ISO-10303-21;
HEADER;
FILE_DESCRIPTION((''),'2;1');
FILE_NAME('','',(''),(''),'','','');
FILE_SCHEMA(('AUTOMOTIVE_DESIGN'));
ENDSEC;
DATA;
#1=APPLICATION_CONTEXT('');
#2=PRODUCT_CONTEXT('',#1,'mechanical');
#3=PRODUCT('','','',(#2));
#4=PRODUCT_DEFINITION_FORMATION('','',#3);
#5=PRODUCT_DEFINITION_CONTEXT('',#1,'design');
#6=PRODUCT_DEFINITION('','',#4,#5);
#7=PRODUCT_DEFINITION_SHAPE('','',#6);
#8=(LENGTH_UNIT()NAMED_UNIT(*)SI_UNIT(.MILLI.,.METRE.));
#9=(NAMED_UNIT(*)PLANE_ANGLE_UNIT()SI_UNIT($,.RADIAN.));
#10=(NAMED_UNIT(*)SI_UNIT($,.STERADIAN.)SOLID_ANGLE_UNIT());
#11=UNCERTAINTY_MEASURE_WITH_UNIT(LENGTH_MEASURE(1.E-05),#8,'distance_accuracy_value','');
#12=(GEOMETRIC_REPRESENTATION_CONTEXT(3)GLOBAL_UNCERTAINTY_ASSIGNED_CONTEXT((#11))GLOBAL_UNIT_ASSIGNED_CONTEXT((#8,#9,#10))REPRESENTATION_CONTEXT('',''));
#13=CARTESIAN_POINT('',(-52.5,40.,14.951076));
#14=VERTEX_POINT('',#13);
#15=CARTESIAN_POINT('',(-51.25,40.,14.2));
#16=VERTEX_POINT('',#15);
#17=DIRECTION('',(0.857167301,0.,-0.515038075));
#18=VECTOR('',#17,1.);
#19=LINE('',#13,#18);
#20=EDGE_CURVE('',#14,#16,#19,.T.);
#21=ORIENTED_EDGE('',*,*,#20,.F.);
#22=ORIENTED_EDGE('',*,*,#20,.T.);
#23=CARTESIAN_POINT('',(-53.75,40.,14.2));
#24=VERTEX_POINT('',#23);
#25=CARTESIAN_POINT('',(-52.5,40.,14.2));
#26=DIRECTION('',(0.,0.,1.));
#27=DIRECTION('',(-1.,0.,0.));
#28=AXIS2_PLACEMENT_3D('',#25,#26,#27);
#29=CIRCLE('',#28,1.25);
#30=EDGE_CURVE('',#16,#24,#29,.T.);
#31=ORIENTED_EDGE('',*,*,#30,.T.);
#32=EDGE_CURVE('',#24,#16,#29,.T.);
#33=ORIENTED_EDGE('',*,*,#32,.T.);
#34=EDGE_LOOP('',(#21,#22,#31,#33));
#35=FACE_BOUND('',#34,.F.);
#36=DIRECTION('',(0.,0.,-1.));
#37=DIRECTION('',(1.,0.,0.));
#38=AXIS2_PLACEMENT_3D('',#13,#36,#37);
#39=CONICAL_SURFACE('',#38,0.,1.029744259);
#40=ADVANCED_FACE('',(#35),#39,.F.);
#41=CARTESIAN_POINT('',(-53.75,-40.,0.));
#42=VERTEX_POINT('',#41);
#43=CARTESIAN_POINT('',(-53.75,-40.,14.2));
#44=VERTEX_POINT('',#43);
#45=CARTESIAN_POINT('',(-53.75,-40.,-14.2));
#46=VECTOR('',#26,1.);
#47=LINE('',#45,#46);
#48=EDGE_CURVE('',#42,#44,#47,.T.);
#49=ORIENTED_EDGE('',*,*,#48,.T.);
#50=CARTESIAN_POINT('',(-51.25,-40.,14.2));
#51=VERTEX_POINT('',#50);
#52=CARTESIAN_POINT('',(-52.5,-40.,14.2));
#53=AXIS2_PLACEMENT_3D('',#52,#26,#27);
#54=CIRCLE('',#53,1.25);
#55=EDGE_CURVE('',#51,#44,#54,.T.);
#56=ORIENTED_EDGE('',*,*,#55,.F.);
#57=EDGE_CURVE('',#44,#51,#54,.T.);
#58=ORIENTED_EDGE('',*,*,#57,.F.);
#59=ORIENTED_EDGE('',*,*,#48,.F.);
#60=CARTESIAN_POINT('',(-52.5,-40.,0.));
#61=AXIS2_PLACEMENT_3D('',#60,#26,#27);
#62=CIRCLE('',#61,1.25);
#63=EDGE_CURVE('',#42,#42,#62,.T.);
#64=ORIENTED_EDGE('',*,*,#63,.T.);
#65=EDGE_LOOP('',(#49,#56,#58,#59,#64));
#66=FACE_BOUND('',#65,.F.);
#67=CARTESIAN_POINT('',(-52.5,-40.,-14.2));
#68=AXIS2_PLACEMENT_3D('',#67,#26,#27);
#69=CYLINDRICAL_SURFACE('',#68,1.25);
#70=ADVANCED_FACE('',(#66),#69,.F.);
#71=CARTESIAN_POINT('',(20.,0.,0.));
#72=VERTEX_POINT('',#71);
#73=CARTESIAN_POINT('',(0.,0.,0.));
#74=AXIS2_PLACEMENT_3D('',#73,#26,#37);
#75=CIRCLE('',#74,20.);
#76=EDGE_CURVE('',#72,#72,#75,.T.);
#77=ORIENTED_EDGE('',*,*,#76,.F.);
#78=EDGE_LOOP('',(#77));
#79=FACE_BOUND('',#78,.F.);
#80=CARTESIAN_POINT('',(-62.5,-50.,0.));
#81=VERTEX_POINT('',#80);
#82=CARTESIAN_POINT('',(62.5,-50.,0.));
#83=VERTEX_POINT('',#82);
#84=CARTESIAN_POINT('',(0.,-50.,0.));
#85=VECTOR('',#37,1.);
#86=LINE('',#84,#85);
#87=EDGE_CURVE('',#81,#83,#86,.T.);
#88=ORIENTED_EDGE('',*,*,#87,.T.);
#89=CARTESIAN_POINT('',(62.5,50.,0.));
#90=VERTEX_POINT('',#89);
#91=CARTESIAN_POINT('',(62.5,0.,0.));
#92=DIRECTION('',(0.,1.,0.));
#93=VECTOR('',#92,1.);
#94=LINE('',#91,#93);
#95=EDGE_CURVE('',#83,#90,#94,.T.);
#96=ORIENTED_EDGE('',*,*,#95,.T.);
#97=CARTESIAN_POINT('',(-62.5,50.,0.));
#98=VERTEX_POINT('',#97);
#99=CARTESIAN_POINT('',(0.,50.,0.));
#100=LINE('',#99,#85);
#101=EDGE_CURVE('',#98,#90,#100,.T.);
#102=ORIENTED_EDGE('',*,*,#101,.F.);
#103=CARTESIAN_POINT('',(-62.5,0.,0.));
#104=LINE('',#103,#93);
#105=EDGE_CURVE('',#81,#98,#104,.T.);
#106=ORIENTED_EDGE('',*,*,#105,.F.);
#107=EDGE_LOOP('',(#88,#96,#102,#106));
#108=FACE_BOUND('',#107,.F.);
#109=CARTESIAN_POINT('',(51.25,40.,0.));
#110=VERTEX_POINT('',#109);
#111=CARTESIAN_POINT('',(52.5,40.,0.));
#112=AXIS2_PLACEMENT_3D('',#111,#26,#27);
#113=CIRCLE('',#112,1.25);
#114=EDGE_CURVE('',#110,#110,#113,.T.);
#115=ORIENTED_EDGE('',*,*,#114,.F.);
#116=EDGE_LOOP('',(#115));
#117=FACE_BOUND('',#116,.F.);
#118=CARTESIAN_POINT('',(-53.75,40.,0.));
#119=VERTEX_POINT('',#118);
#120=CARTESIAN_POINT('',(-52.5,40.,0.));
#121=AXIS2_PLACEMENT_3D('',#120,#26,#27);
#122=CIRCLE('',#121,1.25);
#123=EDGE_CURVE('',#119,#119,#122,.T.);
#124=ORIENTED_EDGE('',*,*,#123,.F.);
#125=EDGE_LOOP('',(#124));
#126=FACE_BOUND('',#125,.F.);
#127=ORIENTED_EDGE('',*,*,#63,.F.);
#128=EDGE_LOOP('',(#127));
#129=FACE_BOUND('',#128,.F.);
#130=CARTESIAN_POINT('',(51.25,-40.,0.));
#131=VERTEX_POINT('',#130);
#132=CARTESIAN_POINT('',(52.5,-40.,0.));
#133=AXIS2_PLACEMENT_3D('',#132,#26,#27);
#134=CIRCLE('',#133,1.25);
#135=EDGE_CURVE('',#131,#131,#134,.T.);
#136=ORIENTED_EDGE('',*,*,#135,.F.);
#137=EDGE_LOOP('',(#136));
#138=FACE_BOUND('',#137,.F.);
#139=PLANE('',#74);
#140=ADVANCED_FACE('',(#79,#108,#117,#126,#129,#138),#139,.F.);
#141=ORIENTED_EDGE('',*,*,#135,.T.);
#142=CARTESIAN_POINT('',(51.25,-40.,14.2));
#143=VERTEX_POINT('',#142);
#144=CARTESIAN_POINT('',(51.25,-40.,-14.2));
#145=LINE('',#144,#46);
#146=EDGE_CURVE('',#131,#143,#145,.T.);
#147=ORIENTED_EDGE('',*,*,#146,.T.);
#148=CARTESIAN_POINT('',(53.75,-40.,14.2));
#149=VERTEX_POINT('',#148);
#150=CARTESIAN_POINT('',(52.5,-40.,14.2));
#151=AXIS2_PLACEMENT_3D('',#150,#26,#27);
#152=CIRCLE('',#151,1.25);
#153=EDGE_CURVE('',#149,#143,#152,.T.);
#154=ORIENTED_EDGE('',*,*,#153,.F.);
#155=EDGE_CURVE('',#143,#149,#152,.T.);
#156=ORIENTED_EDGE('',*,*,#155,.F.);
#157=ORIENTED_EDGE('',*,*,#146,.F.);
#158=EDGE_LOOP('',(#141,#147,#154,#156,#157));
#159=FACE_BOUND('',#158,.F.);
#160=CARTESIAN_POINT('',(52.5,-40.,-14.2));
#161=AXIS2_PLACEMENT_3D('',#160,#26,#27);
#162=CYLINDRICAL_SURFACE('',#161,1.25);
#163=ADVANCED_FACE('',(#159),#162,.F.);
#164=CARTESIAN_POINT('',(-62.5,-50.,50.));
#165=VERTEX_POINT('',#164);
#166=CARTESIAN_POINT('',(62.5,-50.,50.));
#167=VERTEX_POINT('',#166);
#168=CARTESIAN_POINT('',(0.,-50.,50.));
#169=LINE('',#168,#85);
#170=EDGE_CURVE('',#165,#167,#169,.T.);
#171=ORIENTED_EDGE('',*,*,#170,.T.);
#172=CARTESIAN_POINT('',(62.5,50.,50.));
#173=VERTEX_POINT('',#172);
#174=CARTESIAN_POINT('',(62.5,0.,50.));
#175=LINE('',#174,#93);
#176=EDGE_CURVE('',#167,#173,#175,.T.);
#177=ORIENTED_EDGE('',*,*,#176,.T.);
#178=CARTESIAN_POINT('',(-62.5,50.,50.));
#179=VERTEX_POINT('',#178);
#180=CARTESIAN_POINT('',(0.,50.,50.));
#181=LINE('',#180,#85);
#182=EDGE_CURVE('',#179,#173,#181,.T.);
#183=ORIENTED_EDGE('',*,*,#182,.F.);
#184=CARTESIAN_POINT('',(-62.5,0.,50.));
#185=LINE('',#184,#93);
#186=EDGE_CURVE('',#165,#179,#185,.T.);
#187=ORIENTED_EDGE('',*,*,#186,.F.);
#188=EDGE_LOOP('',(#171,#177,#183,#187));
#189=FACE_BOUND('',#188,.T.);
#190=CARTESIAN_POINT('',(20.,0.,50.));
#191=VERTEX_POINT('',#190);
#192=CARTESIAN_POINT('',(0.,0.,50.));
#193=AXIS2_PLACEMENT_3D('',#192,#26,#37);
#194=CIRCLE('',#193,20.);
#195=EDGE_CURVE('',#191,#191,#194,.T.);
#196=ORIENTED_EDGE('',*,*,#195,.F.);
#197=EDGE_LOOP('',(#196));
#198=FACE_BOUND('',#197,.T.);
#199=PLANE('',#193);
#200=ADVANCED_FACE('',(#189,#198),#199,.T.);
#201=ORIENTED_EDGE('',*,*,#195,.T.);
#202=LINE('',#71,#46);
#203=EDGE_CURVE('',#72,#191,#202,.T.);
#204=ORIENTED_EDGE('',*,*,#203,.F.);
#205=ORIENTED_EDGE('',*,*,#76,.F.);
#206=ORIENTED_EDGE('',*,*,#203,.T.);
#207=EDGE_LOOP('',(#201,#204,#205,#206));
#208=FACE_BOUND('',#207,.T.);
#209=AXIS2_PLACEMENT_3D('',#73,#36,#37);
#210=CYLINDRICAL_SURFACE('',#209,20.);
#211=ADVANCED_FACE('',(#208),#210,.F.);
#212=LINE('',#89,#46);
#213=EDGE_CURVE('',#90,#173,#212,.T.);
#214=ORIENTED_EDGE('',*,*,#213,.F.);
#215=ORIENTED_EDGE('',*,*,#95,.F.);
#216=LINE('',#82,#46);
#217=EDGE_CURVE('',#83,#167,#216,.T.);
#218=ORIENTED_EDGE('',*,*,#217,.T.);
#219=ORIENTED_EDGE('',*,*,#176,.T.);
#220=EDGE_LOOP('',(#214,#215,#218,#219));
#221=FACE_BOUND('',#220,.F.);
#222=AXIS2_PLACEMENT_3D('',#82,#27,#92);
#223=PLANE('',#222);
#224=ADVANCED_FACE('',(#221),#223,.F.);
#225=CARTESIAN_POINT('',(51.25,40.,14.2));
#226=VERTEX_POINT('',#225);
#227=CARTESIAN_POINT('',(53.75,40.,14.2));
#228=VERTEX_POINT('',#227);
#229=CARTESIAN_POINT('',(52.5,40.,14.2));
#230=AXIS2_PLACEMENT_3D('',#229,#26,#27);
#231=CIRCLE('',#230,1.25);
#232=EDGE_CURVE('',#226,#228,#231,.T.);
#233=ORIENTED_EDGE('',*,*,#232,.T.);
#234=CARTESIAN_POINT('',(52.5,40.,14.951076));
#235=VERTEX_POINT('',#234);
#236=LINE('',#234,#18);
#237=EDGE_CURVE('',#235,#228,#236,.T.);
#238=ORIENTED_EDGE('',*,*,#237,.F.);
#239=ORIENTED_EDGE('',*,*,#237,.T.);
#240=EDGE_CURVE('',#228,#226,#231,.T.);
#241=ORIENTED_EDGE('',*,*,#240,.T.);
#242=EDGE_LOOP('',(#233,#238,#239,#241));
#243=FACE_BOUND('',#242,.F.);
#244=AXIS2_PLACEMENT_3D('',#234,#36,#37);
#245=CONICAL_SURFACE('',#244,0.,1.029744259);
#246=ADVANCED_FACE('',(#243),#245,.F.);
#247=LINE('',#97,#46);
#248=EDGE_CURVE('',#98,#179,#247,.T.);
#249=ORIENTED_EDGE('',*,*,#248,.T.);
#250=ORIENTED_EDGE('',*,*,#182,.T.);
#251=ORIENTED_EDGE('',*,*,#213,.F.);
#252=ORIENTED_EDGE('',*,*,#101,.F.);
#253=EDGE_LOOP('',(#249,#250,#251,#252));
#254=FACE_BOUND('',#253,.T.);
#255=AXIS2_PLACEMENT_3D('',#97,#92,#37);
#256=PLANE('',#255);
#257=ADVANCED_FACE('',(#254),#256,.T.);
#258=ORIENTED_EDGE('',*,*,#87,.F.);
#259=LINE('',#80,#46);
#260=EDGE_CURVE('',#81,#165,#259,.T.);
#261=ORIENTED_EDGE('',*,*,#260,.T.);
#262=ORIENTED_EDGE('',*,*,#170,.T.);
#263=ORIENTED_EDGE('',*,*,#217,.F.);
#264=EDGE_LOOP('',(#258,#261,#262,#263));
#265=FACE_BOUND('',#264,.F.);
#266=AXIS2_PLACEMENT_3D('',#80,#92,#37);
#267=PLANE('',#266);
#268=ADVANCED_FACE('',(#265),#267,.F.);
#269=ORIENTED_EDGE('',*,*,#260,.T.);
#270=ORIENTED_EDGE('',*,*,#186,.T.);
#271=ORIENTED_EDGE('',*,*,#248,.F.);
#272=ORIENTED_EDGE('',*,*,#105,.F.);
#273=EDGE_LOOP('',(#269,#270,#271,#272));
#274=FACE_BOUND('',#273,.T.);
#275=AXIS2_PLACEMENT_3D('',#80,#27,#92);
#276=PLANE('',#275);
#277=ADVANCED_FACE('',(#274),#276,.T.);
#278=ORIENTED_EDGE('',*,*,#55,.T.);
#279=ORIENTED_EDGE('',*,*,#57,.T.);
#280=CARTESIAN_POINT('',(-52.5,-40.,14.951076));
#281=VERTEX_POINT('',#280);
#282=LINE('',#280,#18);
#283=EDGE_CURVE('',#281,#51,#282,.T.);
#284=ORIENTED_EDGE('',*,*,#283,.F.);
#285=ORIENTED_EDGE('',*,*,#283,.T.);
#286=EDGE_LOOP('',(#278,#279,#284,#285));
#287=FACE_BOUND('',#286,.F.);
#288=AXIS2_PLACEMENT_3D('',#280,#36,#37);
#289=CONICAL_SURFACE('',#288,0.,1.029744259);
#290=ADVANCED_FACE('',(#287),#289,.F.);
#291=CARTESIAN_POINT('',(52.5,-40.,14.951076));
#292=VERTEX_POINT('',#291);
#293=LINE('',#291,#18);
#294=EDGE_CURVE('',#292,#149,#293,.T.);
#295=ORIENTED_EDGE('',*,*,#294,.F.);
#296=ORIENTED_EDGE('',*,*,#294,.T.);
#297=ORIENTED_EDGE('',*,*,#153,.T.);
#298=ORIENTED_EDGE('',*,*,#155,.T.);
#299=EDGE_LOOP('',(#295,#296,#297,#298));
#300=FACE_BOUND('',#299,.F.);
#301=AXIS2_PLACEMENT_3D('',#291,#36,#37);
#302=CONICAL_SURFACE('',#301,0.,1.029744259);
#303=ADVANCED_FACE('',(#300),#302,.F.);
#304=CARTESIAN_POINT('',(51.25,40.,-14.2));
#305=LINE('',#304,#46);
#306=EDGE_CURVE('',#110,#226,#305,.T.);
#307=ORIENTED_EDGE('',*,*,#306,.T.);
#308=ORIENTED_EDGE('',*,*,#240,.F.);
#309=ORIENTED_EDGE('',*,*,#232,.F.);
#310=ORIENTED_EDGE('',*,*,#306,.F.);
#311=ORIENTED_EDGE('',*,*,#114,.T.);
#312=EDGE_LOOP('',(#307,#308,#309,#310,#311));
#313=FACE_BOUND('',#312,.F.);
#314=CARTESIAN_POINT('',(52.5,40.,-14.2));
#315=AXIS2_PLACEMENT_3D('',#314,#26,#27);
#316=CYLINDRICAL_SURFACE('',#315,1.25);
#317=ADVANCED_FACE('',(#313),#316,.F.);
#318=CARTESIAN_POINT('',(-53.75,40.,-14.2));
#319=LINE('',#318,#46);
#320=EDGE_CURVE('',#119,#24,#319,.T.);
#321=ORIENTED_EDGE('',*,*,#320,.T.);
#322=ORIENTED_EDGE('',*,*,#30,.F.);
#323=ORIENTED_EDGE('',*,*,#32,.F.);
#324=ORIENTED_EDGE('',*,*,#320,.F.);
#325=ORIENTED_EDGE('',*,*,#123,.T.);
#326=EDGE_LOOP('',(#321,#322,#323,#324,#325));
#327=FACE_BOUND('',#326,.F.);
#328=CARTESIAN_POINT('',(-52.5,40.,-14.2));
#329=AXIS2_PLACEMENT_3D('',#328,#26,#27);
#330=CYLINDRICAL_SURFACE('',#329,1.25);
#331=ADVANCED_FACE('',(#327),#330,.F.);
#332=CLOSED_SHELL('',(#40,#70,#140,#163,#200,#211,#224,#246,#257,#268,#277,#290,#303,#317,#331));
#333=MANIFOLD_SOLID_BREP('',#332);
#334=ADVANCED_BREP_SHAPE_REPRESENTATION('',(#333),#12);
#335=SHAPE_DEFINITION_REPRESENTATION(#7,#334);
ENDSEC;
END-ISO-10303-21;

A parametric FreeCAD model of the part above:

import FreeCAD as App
import Part
import Sketcher
from FreeCAD import Vector
Q = App.Units.Quantity

doc = App.newDocument("Part")
body = doc.addObject("PartDesign::Body", "Body")

sketch1 = doc.addObject("Sketcher::SketchObject", "Sketch")
body.addObject(sketch1)
sketch1.AttachmentSupport = (doc.XY_Plane, [""])
sketch1.MapMode = "FlatFace"
sketch1.addGeometry(Part.LineSegment(Vector(-62, 50, 0), Vector(-62, -50, 0)), False)
sketch1.addGeometry(Part.LineSegment(Vector(-62, -50, 0), Vector(62, -50, 0)), False)
sketch1.addGeometry(Part.LineSegment(Vector(62, -50, 0), Vector(62, 50, 0)), False)
sketch1.addGeometry(Part.LineSegment(Vector(62, 50, 0), Vector(-62, 50, 0)), False)
sketch1.addGeometry(Part.Circle(Vector(0, 0, 0), Vector(0, 0, 1), 20), False)
sketch1.addConstraint(Sketcher.Constraint("Coincident", 0, 2, 1, 1))
sketch1.addConstraint(Sketcher.Constraint("Coincident", 1, 2, 2, 1))
sketch1.addConstraint(Sketcher.Constraint("Coincident", 2, 2, 3, 1))
sketch1.addConstraint(Sketcher.Constraint("Coincident", 3, 2, 0, 1))
sketch1.addConstraint(Sketcher.Constraint("Vertical", 0))
sketch1.addConstraint(Sketcher.Constraint("Horizontal", 1))
sketch1.addConstraint(Sketcher.Constraint("Vertical", 2))
sketch1.addConstraint(Sketcher.Constraint("Horizontal", 3))
sketch1.addConstraint(Sketcher.Constraint("Coincident", 4, 3, -1, 1))
sketch1.addConstraint(Sketcher.Constraint("Symmetric", 0, 2, 2, 2, -1, 1))
sketch1.addConstraint(Sketcher.Constraint("Diameter", 4, Q("40 mm")))
sketch1.addConstraint(Sketcher.Constraint("DistanceX", 1, 1, 1, 2, Q("125 mm")))
sketch1.addConstraint(Sketcher.Constraint("DistanceY", 0, 2, 0, 1, Q("100 mm")))
pad1 = doc.addObject("PartDesign::Pad", "Pad")
body.addObject(pad1)
pad1.Profile = sketch1
pad1.Length = 50

sketch2 = doc.addObject("Sketcher::SketchObject", "Sketch001")
body.addObject(sketch2)
sketch2.AttachmentSupport = (doc.XY_Plane, [""])
sketch2.MapMode = "FlatFace"
sketch2.addGeometry(Part.Circle(Vector(-52.5, 40, 0), Vector(0, 0, 1), 1.2), False)
sketch2.addGeometry(Part.Circle(Vector(-52.5, -40, 0), Vector(0, 0, 1), 1.2), False)
sketch2.addGeometry(Part.Circle(Vector(52.5, -40, 0), Vector(0, 0, 1), 1.2), False)
sketch2.addGeometry(Part.Circle(Vector(52.5, 40, 0), Vector(0, 0, 1), 1.2), False)
sketch2.addConstraint(Sketcher.Constraint("Equal", 0, 1))
sketch2.addConstraint(Sketcher.Constraint("Equal", 1, 2))
sketch2.addConstraint(Sketcher.Constraint("Equal", 2, 3))
sketch2.addConstraint(Sketcher.Constraint("Symmetric", 0, 3, 2, 3, -1, 1))
sketch2.addConstraint(Sketcher.Constraint("Symmetric", 1, 3, 3, 3, -1, 1))
sketch2.addConstraint(Sketcher.Constraint("Symmetric", 1, 3, 2, 3, -2))
sketch2.addConstraint(Sketcher.Constraint("Diameter", 0, Q("2.5 mm")))
sketch2.addConstraint(Sketcher.Constraint("DistanceY", -1, 1, 0, 3, Q("40 mm")))
sketch2.addConstraint(Sketcher.Constraint("DistanceX", 1, 3, 2, 3, Q("105 mm")))
doc.recompute()
hole = doc.addObject("PartDesign::Hole", "Hole")
body.addObject(hole)
hole.Profile = sketch2
hole.ThreadType = "None"
hole.Diameter = 2.5
hole.DepthType = "Dimension"
hole.Depth = 14.2
hole.DrillPoint = "Angled"
hole.DrillPointAngle = 118
hole.Reversed = True

doc.recompute()
